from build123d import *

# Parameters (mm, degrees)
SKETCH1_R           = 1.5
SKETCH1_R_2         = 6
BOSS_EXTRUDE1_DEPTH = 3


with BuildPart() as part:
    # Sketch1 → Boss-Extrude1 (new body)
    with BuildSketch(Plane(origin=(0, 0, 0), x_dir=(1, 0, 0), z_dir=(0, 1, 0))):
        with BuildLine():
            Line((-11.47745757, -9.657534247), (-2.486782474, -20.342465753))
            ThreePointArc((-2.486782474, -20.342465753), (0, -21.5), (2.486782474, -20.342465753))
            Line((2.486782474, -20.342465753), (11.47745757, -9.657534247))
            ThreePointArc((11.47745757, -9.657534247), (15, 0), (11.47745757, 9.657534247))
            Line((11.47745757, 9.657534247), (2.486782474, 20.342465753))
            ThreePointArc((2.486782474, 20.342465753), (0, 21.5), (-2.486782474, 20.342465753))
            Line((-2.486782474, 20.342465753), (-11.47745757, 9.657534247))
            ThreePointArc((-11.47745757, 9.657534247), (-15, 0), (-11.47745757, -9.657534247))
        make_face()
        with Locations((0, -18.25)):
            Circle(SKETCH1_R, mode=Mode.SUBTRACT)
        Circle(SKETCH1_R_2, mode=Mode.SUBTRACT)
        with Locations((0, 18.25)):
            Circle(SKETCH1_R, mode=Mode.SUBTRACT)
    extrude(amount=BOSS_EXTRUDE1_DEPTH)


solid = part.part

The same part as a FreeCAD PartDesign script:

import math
import FreeCAD as App
import Part
import Sketcher

V = App.Vector

doc = App.newDocument("Part")
params = doc.addObject("Spreadsheet::Sheet", "Params")
for row, (alias, value) in enumerate([
    ("sketch1_diameter", "3 mm"),
    ("sketch1_diameter2", "12 mm"),
    ("sketch1_radius", "15 mm"),
    ("sketch1_radius2", "3.25 mm"),
    ("pad1_length", "3 mm"),
], start=1):
    params.set(f"A{row}", alias)
    params.set(f"B{row}", "=" + value)
    params.setAlias(f"B{row}", alias)

body = doc.addObject("PartDesign::Body", "Body")

# Sketch on XZ plane
sketch1 = doc.addObject("Sketcher::SketchObject", "Sketch")
body.addObject(sketch1)
sketch1.AttachmentSupport = (doc.XZ_Plane, [""])
sketch1.MapMode = "FlatFace"
sketch1.addGeometry([
    Part.LineSegment(V(-11.5, 9.7, 0), V(-2.5, 20.3, 0)),  # 0
    Part.ArcOfCircle(Part.Circle(V(0, 18.2, 0), V(0, 0, 1), 3.2), math.radians(40), math.radians(140)),  # 1
    Part.LineSegment(V(2.5, 20.3, 0), V(11.5, 9.7, 0)),  # 2
    Part.ArcOfCircle(Part.Circle(V(0, 0, 0), V(0, 0, 1), 15), math.radians(-40), math.radians(40)),  # 3
    Part.LineSegment(V(11.5, -9.7, 0), V(2.5, -20.3, 0)),  # 4
    Part.ArcOfCircle(Part.Circle(V(0, -18.2, 0), V(0, 0, 1), 3.2), math.radians(-140), math.radians(-40)),  # 5
    Part.LineSegment(V(-2.5, -20.3, 0), V(-11.5, -9.7, 0)),  # 6
    Part.ArcOfCircle(Part.Circle(V(0, 0, 0), V(0, 0, 1), 15), math.radians(140), math.radians(220)),  # 7
    Part.Circle(V(0, 18.2, 0), V(0, 0, 1), 1.5),  # 8
    Part.Circle(V(0, 0, 0), V(0, 0, 1), 6),  # 9
    Part.Circle(V(0, -18.2, 0), V(0, 0, 1), 1.5),  # 10
], False)
sketch1.addConstraint([
    Sketcher.Constraint("Tangent", 0, 2, 1, 2),
    Sketcher.Constraint("Tangent", 1, 1, 2, 1),
    Sketcher.Constraint("Tangent", 2, 2, 3, 2),
    Sketcher.Constraint("Tangent", 3, 1, 4, 1),
    Sketcher.Constraint("Tangent", 4, 2, 5, 2),
    Sketcher.Constraint("Tangent", 5, 1, 6, 1),
    Sketcher.Constraint("Tangent", 6, 2, 7, 2),
    Sketcher.Constraint("Tangent", 7, 1, 0, 1),
    Sketcher.Constraint("Coincident", 3, 3, -1, 1),
    Sketcher.Constraint("Coincident", 7, 3, -1, 1),
    Sketcher.Constraint("Coincident", 9, 3, -1, 1),
    Sketcher.Constraint("Coincident", 8, 3, 1, 3),
    Sketcher.Constraint("Coincident", 10, 3, 5, 3),
    Sketcher.Constraint("Equal", 1, 5),
    Sketcher.Constraint("Equal", 3, 7),
    Sketcher.Constraint("Equal", 8, 10),
    Sketcher.Constraint("Symmetric", 1, 3, 5, 3, -1, 1),
    Sketcher.Constraint("PointOnObject", 1, 3, -2),
    Sketcher.Constraint("Diameter", 8, 3.0),
    Sketcher.Constraint("Diameter", 9, 12.0),
    Sketcher.Constraint("Radius", 3, 15.0),
    Sketcher.Constraint("Radius", 1, 3.25),
    Sketcher.Constraint("DistanceY", 5, 3, 1, 3, 36.5),
])
sketch1.setExpression("Constraints[18]", "Params.sketch1_diameter")
sketch1.setExpression("Constraints[19]", "Params.sketch1_diameter2")
sketch1.setExpression("Constraints[20]", "Params.sketch1_radius")
sketch1.setExpression("Constraints[21]", "Params.sketch1_radius2")
pad1 = doc.addObject("PartDesign::Pad", "Pad")
body.addObject(pad1)
pad1.Profile = sketch1
pad1.setExpression("Length", "Params.pad1_length")
pad1.Reversed = True

doc.recompute()
